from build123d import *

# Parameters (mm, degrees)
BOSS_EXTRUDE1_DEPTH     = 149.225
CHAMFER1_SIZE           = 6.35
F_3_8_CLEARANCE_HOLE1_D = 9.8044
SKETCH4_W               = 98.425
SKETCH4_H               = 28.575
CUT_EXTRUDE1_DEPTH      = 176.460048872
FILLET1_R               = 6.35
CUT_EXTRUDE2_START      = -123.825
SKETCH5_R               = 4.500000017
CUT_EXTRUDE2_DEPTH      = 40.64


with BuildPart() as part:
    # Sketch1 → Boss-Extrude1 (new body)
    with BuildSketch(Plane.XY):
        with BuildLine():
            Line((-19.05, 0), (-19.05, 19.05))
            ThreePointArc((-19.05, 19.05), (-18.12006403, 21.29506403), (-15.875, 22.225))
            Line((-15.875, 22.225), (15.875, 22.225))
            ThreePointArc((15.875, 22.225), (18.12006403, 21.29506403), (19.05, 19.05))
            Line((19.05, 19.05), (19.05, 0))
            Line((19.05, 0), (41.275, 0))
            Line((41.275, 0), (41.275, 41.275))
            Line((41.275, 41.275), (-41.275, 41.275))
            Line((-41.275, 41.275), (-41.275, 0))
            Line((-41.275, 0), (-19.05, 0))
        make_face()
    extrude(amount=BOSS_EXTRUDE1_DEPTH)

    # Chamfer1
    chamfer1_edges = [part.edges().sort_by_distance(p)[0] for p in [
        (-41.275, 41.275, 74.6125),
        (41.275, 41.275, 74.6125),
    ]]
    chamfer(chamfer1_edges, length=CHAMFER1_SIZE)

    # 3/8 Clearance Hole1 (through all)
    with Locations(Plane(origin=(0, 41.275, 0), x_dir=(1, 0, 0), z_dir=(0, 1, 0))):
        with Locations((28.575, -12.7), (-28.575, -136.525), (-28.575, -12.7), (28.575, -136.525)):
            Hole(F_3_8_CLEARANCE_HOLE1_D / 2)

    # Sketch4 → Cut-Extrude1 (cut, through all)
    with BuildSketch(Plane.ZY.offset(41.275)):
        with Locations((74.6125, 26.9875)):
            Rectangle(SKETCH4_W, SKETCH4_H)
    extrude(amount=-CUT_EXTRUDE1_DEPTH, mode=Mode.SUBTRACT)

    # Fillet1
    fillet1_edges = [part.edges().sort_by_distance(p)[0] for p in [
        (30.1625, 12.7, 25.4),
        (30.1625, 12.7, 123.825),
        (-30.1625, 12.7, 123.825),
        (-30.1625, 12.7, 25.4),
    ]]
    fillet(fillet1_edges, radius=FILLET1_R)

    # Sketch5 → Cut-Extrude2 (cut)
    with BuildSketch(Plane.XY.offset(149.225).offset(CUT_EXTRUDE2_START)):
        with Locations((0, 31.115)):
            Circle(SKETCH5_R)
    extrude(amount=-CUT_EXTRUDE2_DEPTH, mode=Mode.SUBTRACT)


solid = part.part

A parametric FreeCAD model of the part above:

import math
import FreeCAD as App
import Part
import Sketcher

V = App.Vector
Q = App.Units.Quantity


def edges_at(feature, points):
    """Names of the edges that pass closest to the given points."""
    edges = feature.Shape.Edges
    near = lambda p: min(range(len(edges)), key=lambda i: edges[i].distToShape(Part.Vertex(*p))[0])
    return sorted({f"Edge{near(p) + 1}" for p in points})


def add_polygon(sketch, points):
    """Adds a closed chain of lines whose ends are joined by coincident constraints."""
    first, n = sketch.GeometryCount, len(points)
    for a, b in zip(points, points[1:] + points[:1]):
        sketch.addGeometry(Part.LineSegment(App.Vector(*a, 0), App.Vector(*b, 0)), False)
    for i in range(n):
        sketch.addConstraint(Sketcher.Constraint("Coincident", first + i, 2, first + (i + 1) % n, 1))

doc = App.newDocument("Part")
body = doc.addObject("PartDesign::Body", "Body")

# Sketch on XY plane
sketch1 = body.newObject("Sketcher::SketchObject", "Sketch")
sketch1.AttachmentSupport = (doc.getObject("XY_Plane"), [""])
sketch1.MapMode = "FlatFace"
sketch1.addGeometry(Part.LineSegment(V(-19.1, 0, 0), V(-19.1, 19.1, 0)), False)
sketch1.addGeometry(Part.ArcOfCircle(Part.Circle(V(-15.9, 19, 0), V(0, 0, 1), 3.2), math.radians(90), math.radians(180)), False)
sketch1.addGeometry(Part.LineSegment(V(-15.9, 22.2, 0), V(15.9, 22.2, 0)), False)
sketch1.addGeometry(Part.ArcOfCircle(Part.Circle(V(15.9, 19, 0), V(0, 0, 1), 3.2), math.radians(0), math.radians(90)), False)
sketch1.addGeometry(Part.LineSegment(V(19.1, 19.1, 0), V(19.1, 0, 0)), False)
sketch1.addGeometry(Part.LineSegment(V(19.1, 0, 0), V(41.3, 0, 0)), False)
sketch1.addGeometry(Part.LineSegment(V(41.3, 0, 0), V(41.3, 41.3, 0)), False)
sketch1.addGeometry(Part.LineSegment(V(41.3, 41.3, 0), V(-41.3, 41.3, 0)), False)
sketch1.addGeometry(Part.LineSegment(V(-41.3, 41.3, 0), V(-41.3, 0, 0)), False)
sketch1.addGeometry(Part.LineSegment(V(-41.3, 0, 0), V(-19.1, 0, 0)), False)
sketch1.addConstraint(Sketcher.Constraint("Tangent", 0, 2, 1, 2))
sketch1.addConstraint(Sketcher.Constraint("Tangent", 1, 1, 2, 1))
sketch1.addConstraint(Sketcher.Constraint("Tangent", 2, 2, 3, 2))
sketch1.addConstraint(Sketcher.Constraint("Tangent", 3, 1, 4, 1))
sketch1.addConstraint(Sketcher.Constraint("Coincident", 4, 2, 5, 1))
sketch1.addConstraint(Sketcher.Constraint("Coincident", 5, 2, 6, 1))
sketch1.addConstraint(Sketcher.Constraint("Coincident", 6, 2, 7, 1))
sketch1.addConstraint(Sketcher.Constraint("Coincident", 7, 2, 8, 1))
sketch1.addConstraint(Sketcher.Constraint("Coincident", 8, 2, 9, 1))
sketch1.addConstraint(Sketcher.Constraint("Coincident", 9, 2, 0, 1))
sketch1.addConstraint(Sketcher.Constraint("Vertical", 0))
sketch1.addConstraint(Sketcher.Constraint("Horizontal", 2))
sketch1.addConstraint(Sketcher.Constraint("Vertical", 4))
sketch1.addConstraint(Sketcher.Constraint("Horizontal", 5))
sketch1.addConstraint(Sketcher.Constraint("Vertical", 6))
sketch1.addConstraint(Sketcher.Constraint("Horizontal", 7))
sketch1.addConstraint(Sketcher.Constraint("Vertical", 8))
sketch1.addConstraint(Sketcher.Constraint("Horizontal", 9))
sketch1.addConstraint(Sketcher.Constraint("Equal", 1, 3))
sketch1.addConstraint(Sketcher.Constraint("Symmetric", 5, 2, 8, 2, -1, 1))
sketch1.addConstraint(Sketcher.Constraint("Symmetric", 4, 2, 9, 2, -2))
sketch1.addConstraint(Sketcher.Constraint("Radius", 1, Q("0.125 in")))
sketch1.addConstraint(Sketcher.Constraint("DistanceX", 3, 3, 5, 2, Q("1 in")))
sketch1.addConstraint(Sketcher.Constraint("DistanceX", 2, 1, 2, 2, Q("1.25 in")))
sketch1.addConstraint(Sketcher.Constraint("DistanceY", 0, 1, 0, 2, Q("0.75 in")))
sketch1.addConstraint(Sketcher.Constraint("DistanceY", 6, 1, 6, 2, Q("1.625 in")))
pad1 = body.newObject("PartDesign::Pad", "Pad")
pad1.Profile = sketch1
pad1.Length = Q("5.875 in")
doc.recompute()

chamfer = body.newObject("PartDesign::Chamfer", "Chamfer")
chamfer.Base = (pad1, edges_at(pad1, [(-41.275, 41.275, 74.612), (41.275, 41.275, 74.612)]))
chamfer.Size = Q("0.25 in")

# Sketch on XZ plane
sketch2 = body.newObject("Sketcher::SketchObject", "Sketch001")
sketch2.AttachmentSupport = (doc.getObject("XZ_Plane"), [""])
sketch2.MapMode = "FlatFace"
sketch2.AttachmentOffset = App.Placement(V(0, 0, -1.625 * 25.4), App.Rotation())
sketch2.addGeometry(Part.Circle(V(28.6, 12.7, 0), V(0, 0, 1), 4.9), False)
sketch2.addGeometry(Part.Circle(V(-28.6, 136.5, 0), V(0, 0, 1), 4.9), False)
sketch2.addGeometry(Part.Circle(V(-28.6, 12.7, 0), V(0, 0, 1), 4.9), False)
sketch2.addGeometry(Part.Circle(V(28.6, 136.5, 0), V(0, 0, 1), 4.9), False)
sketch2.addConstraint(Sketcher.Constraint("Equal", 0, 1))
sketch2.addConstraint(Sketcher.Constraint("Equal", 1, 2))
sketch2.addConstraint(Sketcher.Constraint("Equal", 2, 3))
sketch2.addConstraint(Sketcher.Constraint("Symmetric", 0, 3, 2, 3, -2))
sketch2.addConstraint(Sketcher.Constraint("Symmetric", 1, 3, 3, 3, -2))
sketch2.addConstraint(Sketcher.Constraint("Vertical", 1, 3, 2, 3))
sketch2.addConstraint(Sketcher.Constraint("Diameter", 0, Q("0.386 in")))
sketch2.addConstraint(Sketcher.Constraint("DistanceY", -1, 1, 0, 3, Q("0.5 in")))
sketch2.addConstraint(Sketcher.Constraint("DistanceX", 1, 3, 0, 3, Q("2.25 in")))
sketch2.addConstraint(Sketcher.Constraint("DistanceY", -1, 1, 1, 3, Q("5.375 in")))
doc.recompute()
hole = body.newObject("PartDesign::Hole", "Hole")
hole.Profile = sketch2
hole.ThreadType = "None"
hole.Diameter = Q("0.386 in")
hole.DepthType = "ThroughAll"
hole.Reversed = True

# Sketch on YZ plane
sketch3 = body.newObject("Sketcher::SketchObject", "Sketch002")
sketch3.AttachmentSupport = (doc.getObject("YZ_Plane"), [""])
sketch3.MapMode = "FlatFace"
sketch3.AttachmentOffset = App.Placement(V(0, 0, -1.625 * 25.4), App.Rotation())
add_polygon(sketch3, [(41, 25), (13, 25), (13, 124), (41, 124)])  # lines 0-3
sketch3.addConstraint(Sketcher.Constraint("Horizontal", 0))
sketch3.addConstraint(Sketcher.Constraint("Vertical", 1))
sketch3.addConstraint(Sketcher.Constraint("Horizontal", 2))
sketch3.addConstraint(Sketcher.Constraint("Vertical", 3))
sketch3.addConstraint(Sketcher.Constraint("DistanceY", -1, 1, 0, 2, Q("1 in")))
sketch3.addConstraint(Sketcher.Constraint("DistanceX", -1, 1, 0, 2, Q("0.5 in")))
sketch3.addConstraint(Sketcher.Constraint("DistanceX", 0, 2, 0, 1, Q("1.125 in")))
sketch3.addConstraint(Sketcher.Constraint("DistanceY", 1, 1, 1, 2, Q("3.875 in")))
pocket1 = body.newObject("PartDesign::Pocket", "Pocket")
pocket1.Profile = sketch3
pocket1.Type = "ThroughAll"
pocket1.Reversed = True
doc.recompute()

fillet = body.newObject("PartDesign::Fillet", "Fillet")
fillet.Base = (pocket1, edges_at(pocket1, [
    (30.163, 12.7, 25.4),
    (30.163, 12.7, 123.825),
    (-30.163, 12.7, 123.825),
    (-30.163, 12.7, 25.4),
]))
fillet.Radius = Q("0.25 in")

# Sketch on XY plane
sketch4 = body.newObject("Sketcher::SketchObject", "Sketch003")
sketch4.AttachmentSupport = (doc.getObject("XY_Plane"), [""])
sketch4.MapMode = "FlatFace"
sketch4.AttachmentOffset = App.Placement(V(0, 0, 1 * 25.4), App.Rotation())
sketch4.addGeometry(Part.Circle(V(0, 31.1, 0), V(0, 0, 1), 4.5), False)
sketch4.addConstraint(Sketcher.Constraint("PointOnObject", 0, 3, -2))
sketch4.addConstraint(Sketcher.Constraint("Diameter", 0, 9.0))
sketch4.addConstraint(Sketcher.Constraint("DistanceY", -1, 1, 0, 3, Q("1.225 in")))
pocket2 = body.newObject("PartDesign::Pocket", "Pocket001")
pocket2.Profile = sketch4
pocket2.Length = Q("1.6 in")

doc.recompute()
